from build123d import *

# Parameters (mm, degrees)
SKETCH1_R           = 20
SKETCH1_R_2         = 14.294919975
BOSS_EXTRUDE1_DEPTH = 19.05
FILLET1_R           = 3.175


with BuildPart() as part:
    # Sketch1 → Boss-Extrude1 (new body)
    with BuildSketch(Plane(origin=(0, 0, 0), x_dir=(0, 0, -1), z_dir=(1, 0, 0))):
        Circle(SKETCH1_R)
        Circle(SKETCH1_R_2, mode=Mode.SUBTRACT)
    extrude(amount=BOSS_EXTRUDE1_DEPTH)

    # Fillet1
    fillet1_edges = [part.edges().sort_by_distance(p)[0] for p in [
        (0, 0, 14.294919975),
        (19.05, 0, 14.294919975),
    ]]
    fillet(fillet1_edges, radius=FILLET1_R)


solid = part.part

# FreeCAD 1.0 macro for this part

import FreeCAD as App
import Part
import Sketcher
Q = App.Units.Quantity


def edges_at(feature, points):
    """Names of the edges that pass closest to the given points."""
    edges = feature.Shape.Edges
    near = lambda p: min(range(len(edges)), key=lambda i: edges[i].distToShape(Part.Vertex(*p))[0])
    return sorted({f"Edge{near(p) + 1}" for p in points})

doc = App.newDocument("Part")
body = doc.addObject("PartDesign::Body", "Body")

sketch1 = body.newObject("Sketcher::SketchObject", "Sketch")
sketch1.AttachmentSupport = (doc.getObject("YZ_Plane"), [""])
sketch1.MapMode = "FlatFace"
sketch1.addGeometry([
    Part.Circle(App.Vector(0, 0, 0), App.Vector(0, 0, 1), 20),
    Part.Circle(App.Vector(0, 0, 0), App.Vector(0, 0, 1), 14),
], False)
sketch1.addConstraint([
    Sketcher.Constraint("Coincident", 0, 3, -1, 1),
    Sketcher.Constraint("Coincident", 1, 3, -1, 1),
    Sketcher.Constraint("Diameter", 0, Q("40 mm")),
    Sketcher.Constraint("Diameter", 1, Q("28.58984 mm")),
])
pad1 = body.newObject("PartDesign::Pad", "Pad")
pad1.Profile = sketch1
pad1.Length = Q("0.75 in")
doc.recompute()

fillet = body.newObject("PartDesign::Fillet", "Fillet")
fillet.Base = (pad1, edges_at(pad1, [(0, 0, 14.295), (19.05, 0, 14.295)]))
fillet.Radius = Q("0.125 in")

doc.recompute()
